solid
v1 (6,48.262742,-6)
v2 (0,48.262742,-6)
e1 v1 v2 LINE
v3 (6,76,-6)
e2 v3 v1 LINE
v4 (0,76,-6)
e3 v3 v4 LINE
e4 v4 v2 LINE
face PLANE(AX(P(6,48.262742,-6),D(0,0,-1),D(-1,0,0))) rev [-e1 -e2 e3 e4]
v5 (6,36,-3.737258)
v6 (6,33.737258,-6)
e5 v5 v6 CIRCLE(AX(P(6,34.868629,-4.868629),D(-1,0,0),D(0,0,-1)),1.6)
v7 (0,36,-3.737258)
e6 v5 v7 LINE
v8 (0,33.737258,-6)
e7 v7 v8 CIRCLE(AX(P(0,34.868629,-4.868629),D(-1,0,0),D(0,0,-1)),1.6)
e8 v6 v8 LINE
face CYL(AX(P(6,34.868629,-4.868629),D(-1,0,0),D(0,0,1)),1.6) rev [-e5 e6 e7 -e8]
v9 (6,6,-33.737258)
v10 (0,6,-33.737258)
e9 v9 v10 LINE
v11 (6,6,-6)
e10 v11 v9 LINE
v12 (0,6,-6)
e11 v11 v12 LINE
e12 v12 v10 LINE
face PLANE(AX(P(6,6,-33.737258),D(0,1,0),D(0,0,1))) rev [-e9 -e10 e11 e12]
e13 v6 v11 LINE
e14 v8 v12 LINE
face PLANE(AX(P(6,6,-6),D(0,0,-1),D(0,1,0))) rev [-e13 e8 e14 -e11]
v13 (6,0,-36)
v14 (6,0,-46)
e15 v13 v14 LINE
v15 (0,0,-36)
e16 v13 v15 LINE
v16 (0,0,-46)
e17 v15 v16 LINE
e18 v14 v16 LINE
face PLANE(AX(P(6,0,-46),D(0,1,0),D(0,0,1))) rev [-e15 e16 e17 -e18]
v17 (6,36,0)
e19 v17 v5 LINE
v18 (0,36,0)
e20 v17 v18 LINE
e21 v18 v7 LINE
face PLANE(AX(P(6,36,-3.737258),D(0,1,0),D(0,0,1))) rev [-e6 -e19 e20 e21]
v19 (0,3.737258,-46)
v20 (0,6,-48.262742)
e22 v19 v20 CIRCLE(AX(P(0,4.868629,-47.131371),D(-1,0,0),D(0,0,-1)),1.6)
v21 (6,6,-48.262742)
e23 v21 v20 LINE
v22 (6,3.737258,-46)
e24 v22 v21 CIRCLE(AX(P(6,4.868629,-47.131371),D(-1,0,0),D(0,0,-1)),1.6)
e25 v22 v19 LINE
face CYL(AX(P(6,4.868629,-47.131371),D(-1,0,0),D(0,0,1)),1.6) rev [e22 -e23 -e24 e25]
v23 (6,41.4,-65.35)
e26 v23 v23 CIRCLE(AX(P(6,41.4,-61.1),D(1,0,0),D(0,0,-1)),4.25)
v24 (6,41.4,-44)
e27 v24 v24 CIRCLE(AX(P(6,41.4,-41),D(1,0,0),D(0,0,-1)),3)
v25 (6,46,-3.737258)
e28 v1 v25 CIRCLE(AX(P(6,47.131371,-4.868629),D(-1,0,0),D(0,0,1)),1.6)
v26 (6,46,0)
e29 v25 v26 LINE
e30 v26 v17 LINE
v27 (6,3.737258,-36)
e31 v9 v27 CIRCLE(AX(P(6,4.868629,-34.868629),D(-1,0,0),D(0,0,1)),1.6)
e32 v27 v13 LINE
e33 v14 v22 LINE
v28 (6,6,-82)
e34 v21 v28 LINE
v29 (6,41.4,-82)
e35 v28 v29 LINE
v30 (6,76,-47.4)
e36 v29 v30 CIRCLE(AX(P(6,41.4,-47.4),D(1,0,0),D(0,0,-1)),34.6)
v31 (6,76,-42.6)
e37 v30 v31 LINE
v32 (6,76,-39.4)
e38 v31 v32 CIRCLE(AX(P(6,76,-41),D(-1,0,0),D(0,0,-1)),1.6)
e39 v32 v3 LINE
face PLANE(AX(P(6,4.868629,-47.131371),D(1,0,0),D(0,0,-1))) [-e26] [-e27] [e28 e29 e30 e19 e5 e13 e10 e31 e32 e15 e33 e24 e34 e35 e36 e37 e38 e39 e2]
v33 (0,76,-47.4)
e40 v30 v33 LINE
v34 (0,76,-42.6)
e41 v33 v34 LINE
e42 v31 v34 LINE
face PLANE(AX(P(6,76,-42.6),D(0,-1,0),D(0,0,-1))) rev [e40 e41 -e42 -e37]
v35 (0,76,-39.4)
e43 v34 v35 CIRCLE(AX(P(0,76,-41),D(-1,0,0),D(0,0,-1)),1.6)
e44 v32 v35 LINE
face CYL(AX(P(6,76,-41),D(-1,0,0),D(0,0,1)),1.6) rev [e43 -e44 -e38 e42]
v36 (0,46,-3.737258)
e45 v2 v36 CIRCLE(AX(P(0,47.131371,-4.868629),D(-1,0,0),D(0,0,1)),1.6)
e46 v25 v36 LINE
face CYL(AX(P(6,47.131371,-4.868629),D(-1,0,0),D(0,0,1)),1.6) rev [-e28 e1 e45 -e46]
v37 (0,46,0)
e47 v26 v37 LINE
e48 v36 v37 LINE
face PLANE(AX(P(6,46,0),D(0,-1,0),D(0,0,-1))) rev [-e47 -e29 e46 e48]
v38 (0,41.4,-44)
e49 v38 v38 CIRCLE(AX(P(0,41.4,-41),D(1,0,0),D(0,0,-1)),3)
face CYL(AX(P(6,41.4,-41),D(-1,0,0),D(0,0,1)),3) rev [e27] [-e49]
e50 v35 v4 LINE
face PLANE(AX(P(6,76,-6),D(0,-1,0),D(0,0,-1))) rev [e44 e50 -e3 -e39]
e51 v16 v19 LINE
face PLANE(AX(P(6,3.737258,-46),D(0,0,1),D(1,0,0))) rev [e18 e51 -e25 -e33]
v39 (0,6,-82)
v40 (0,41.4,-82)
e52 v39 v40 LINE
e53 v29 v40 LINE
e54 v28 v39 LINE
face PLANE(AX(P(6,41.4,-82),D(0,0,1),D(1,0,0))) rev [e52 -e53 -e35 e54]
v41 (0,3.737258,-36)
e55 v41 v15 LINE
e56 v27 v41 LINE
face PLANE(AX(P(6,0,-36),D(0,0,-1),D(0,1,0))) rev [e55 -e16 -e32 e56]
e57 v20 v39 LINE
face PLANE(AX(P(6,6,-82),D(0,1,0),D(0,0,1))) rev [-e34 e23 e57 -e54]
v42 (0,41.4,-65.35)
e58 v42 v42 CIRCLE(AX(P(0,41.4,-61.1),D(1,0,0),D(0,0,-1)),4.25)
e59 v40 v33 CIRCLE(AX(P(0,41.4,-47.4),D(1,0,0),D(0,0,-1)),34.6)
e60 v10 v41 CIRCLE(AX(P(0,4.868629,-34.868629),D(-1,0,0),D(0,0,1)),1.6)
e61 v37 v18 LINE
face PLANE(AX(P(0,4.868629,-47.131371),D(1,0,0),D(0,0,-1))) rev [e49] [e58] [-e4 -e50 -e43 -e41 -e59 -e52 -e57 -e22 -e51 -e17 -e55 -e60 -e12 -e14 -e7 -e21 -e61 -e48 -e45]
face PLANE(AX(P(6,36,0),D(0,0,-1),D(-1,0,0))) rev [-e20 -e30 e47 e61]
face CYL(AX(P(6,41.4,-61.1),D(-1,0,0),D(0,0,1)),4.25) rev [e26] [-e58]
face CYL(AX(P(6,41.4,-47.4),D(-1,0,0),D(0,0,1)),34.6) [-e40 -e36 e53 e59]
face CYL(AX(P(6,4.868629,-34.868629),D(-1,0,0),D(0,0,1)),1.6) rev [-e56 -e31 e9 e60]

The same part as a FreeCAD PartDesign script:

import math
import FreeCAD as App
import Part
import Sketcher
from FreeCAD import Vector

doc = App.newDocument("Part")
body = doc.addObject("PartDesign::Body", "Body")

sketch1 = body.newObject("Sketcher::SketchObject", "Sketch")
sketch1.AttachmentSupport = (doc.getObject("YZ_Plane"), [""])
sketch1.MapMode = "FlatFace"
sketch1.addGeometry([
    Part.LineSegment(Vector(0, -46, 0), Vector(3.7, -46, 0)),
    Part.ArcOfCircle(Part.Circle(Vector(4.9, -47.1, 0), Vector(0, 0, 1), 1.6), math.radians(-45), math.radians(135)),
    Part.LineSegment(Vector(6, -48.3, 0), Vector(6, -82, 0)),
    Part.LineSegment(Vector(6, -82, 0), Vector(41.4, -82, 0)),
    Part.ArcOfCircle(Part.Circle(Vector(41.4, -47.4, 0), Vector(0, 0, 1), 34.6), math.radians(-90), math.radians(0)),
    Part.LineSegment(Vector(76, -47.4, 0), Vector(76, -42.6, 0)),
    Part.ArcOfCircle(Part.Circle(Vector(76, -41, 0), Vector(0, 0, 1), 1.6), math.radians(90), math.radians(270)),
    Part.LineSegment(Vector(76, -39.4, 0), Vector(76, -6, 0)),
    Part.LineSegment(Vector(76, -6, 0), Vector(48.3, -6, 0)),
    Part.ArcOfCircle(Part.Circle(Vector(47.1, -4.9, 0), Vector(0, 0, 1), 1.6), math.radians(135), math.radians(315)),
    Part.LineSegment(Vector(46, -3.7, 0), Vector(46, 0, 0)),
    Part.LineSegment(Vector(46, 0, 0), Vector(36, 0, 0)),
    Part.LineSegment(Vector(36, 0, 0), Vector(36, -3.7, 0)),
    Part.ArcOfCircle(Part.Circle(Vector(34.9, -4.9, 0), Vector(0, 0, 1), 1.6), math.radians(-135), math.radians(45)),
    Part.LineSegment(Vector(33.7, -6, 0), Vector(6, -6, 0)),
    Part.LineSegment(Vector(6, -6, 0), Vector(6, -33.7, 0)),
    Part.ArcOfCircle(Part.Circle(Vector(4.9, -34.9, 0), Vector(0, 0, 1), 1.6), math.radians(-135), math.radians(45)),
    Part.LineSegment(Vector(3.7, -36, 0), Vector(0, -36, 0)),
    Part.LineSegment(Vector(0, -36, 0), Vector(0, -46, 0)),
    Part.Circle(Vector(41.4, -61.1, 0), Vector(0, 0, 1), 4.2),
    Part.Circle(Vector(41.4, -41, 0), Vector(0, 0, 1), 3),
], False)
sketch1.addConstraint([
    Sketcher.Constraint("Coincident", 0, 2, 1, 2),
    Sketcher.Constraint("Coincident", 1, 1, 2, 1),
    Sketcher.Constraint("Coincident", 2, 2, 3, 1),
    Sketcher.Constraint("Tangent", 3, 2, 4, 1),
    Sketcher.Constraint("Tangent", 4, 2, 5, 1),
    Sketcher.Constraint("Coincident", 5, 2, 6, 2),
    Sketcher.Constraint("Coincident", 6, 1, 7, 1),
    Sketcher.Constraint("Coincident", 7, 2, 8, 1),
    Sketcher.Constraint("Coincident", 8, 2, 9, 2),
    Sketcher.Constraint("Coincident", 9, 1, 10, 1),
    Sketcher.Constraint("Coincident", 10, 2, 11, 1),
    Sketcher.Constraint("Coincident", 11, 2, 12, 1),
    Sketcher.Constraint("Coincident", 12, 2, 13, 2),
    Sketcher.Constraint("Coincident", 13, 1, 14, 1),
    Sketcher.Constraint("Coincident", 14, 2, 15, 1),
    Sketcher.Constraint("Coincident", 15, 2, 16, 2),
    Sketcher.Constraint("Coincident", 16, 1, 17, 1),
    Sketcher.Constraint("Coincident", 17, 2, 18, 1),
    Sketcher.Constraint("Coincident", 18, 2, 0, 1),
    Sketcher.Constraint("Horizontal", 0),
    Sketcher.Constraint("Vertical", 2),
    Sketcher.Constraint("Horizontal", 3),
    Sketcher.Constraint("Vertical", 5),
    Sketcher.Constraint("Vertical", 7),
    Sketcher.Constraint("Horizontal", 8),
    Sketcher.Constraint("Vertical", 10),
    Sketcher.Constraint("Horizontal", 11),
    Sketcher.Constraint("Vertical", 12),
    Sketcher.Constraint("Horizontal", 14),
    Sketcher.Constraint("Vertical", 15),
    Sketcher.Constraint("Horizontal", 17),
    Sketcher.Constraint("Vertical", 18),
    Sketcher.Constraint("Equal", 1, 6),
    Sketcher.Constraint("Equal", 6, 9),
    Sketcher.Constraint("Equal", 9, 13),
    Sketcher.Constraint("Equal", 13, 16),
    Sketcher.Constraint("PointOnObject", 10, 2, -1),
    Sketcher.Constraint("PointOnObject", 17, 2, -2),
    Sketcher.Constraint("Horizontal", 9, 3, 13, 3),
    Sketcher.Constraint("Horizontal", 6, 3, 20, 3),
    Sketcher.Constraint("Horizontal", 9, 1, 12, 2),
    Sketcher.Constraint("Horizontal", 8, 2, 13, 1),
    Sketcher.Constraint("Vertical", 1, 3, 16, 3),
    Sketcher.Constraint("Vertical", 4, 3, 19, 3),
    Sketcher.Constraint("Vertical", 19, 3, 20, 3),
    Sketcher.Constraint("Vertical", 6, 3, 4, 2),
    Sketcher.Constraint("Vertical", 5, 2, 6, 1),
    Sketcher.Constraint("Vertical", 2, 2, 14, 2),
    Sketcher.Constraint("Vertical", 0, 2, 16, 1),
    Sketcher.Constraint("Equal", 8, 14),
    Sketcher.Constraint("Equal", 17, 10),
    Sketcher.Constraint("Equal", 14, 15),
    Sketcher.Constraint("Equal", 11, 18),
    Sketcher.Constraint("Diameter", 20, 6.0),
    Sketcher.Constraint("Diameter", 19, 8.5),
    Sketcher.Constraint("Radius", 1, 1.6),
    Sketcher.Constraint("Radius", 4, 34.6),
    Sketcher.Constraint("DistanceX", 11, 2, 11, 1, 10.0),
    Sketcher.Constraint("DistanceX", 3, 1, 3, 2, 35.4),
    Sketcher.Constraint("DistanceY", 5, 1, 5, 2, 4.8),
    Sketcher.Constraint("DistanceY", 7, 1, 7, 2, 33.4),
    Sketcher.Constraint("DistanceX", -1, 1, 6, 3, 76.0),
    Sketcher.Constraint("DistanceY", 6, 3, -1, 1, 41.0),
    Sketcher.Constraint("DistanceX", 1, 3, 13, 3, 30.0),
    Sketcher.Constraint("DistanceY", 16, 3, 13, 3, 30.0),
    Sketcher.Constraint("DistanceY", 19, 3, -1, 1, 61.1),
    Sketcher.Constraint("DistanceX", -1, 1, 1, 3, 4.868629),
])
pad1 = body.newObject("PartDesign::Pad", "Pad")
pad1.Profile = sketch1
pad1.Length = 6

doc.recompute()
